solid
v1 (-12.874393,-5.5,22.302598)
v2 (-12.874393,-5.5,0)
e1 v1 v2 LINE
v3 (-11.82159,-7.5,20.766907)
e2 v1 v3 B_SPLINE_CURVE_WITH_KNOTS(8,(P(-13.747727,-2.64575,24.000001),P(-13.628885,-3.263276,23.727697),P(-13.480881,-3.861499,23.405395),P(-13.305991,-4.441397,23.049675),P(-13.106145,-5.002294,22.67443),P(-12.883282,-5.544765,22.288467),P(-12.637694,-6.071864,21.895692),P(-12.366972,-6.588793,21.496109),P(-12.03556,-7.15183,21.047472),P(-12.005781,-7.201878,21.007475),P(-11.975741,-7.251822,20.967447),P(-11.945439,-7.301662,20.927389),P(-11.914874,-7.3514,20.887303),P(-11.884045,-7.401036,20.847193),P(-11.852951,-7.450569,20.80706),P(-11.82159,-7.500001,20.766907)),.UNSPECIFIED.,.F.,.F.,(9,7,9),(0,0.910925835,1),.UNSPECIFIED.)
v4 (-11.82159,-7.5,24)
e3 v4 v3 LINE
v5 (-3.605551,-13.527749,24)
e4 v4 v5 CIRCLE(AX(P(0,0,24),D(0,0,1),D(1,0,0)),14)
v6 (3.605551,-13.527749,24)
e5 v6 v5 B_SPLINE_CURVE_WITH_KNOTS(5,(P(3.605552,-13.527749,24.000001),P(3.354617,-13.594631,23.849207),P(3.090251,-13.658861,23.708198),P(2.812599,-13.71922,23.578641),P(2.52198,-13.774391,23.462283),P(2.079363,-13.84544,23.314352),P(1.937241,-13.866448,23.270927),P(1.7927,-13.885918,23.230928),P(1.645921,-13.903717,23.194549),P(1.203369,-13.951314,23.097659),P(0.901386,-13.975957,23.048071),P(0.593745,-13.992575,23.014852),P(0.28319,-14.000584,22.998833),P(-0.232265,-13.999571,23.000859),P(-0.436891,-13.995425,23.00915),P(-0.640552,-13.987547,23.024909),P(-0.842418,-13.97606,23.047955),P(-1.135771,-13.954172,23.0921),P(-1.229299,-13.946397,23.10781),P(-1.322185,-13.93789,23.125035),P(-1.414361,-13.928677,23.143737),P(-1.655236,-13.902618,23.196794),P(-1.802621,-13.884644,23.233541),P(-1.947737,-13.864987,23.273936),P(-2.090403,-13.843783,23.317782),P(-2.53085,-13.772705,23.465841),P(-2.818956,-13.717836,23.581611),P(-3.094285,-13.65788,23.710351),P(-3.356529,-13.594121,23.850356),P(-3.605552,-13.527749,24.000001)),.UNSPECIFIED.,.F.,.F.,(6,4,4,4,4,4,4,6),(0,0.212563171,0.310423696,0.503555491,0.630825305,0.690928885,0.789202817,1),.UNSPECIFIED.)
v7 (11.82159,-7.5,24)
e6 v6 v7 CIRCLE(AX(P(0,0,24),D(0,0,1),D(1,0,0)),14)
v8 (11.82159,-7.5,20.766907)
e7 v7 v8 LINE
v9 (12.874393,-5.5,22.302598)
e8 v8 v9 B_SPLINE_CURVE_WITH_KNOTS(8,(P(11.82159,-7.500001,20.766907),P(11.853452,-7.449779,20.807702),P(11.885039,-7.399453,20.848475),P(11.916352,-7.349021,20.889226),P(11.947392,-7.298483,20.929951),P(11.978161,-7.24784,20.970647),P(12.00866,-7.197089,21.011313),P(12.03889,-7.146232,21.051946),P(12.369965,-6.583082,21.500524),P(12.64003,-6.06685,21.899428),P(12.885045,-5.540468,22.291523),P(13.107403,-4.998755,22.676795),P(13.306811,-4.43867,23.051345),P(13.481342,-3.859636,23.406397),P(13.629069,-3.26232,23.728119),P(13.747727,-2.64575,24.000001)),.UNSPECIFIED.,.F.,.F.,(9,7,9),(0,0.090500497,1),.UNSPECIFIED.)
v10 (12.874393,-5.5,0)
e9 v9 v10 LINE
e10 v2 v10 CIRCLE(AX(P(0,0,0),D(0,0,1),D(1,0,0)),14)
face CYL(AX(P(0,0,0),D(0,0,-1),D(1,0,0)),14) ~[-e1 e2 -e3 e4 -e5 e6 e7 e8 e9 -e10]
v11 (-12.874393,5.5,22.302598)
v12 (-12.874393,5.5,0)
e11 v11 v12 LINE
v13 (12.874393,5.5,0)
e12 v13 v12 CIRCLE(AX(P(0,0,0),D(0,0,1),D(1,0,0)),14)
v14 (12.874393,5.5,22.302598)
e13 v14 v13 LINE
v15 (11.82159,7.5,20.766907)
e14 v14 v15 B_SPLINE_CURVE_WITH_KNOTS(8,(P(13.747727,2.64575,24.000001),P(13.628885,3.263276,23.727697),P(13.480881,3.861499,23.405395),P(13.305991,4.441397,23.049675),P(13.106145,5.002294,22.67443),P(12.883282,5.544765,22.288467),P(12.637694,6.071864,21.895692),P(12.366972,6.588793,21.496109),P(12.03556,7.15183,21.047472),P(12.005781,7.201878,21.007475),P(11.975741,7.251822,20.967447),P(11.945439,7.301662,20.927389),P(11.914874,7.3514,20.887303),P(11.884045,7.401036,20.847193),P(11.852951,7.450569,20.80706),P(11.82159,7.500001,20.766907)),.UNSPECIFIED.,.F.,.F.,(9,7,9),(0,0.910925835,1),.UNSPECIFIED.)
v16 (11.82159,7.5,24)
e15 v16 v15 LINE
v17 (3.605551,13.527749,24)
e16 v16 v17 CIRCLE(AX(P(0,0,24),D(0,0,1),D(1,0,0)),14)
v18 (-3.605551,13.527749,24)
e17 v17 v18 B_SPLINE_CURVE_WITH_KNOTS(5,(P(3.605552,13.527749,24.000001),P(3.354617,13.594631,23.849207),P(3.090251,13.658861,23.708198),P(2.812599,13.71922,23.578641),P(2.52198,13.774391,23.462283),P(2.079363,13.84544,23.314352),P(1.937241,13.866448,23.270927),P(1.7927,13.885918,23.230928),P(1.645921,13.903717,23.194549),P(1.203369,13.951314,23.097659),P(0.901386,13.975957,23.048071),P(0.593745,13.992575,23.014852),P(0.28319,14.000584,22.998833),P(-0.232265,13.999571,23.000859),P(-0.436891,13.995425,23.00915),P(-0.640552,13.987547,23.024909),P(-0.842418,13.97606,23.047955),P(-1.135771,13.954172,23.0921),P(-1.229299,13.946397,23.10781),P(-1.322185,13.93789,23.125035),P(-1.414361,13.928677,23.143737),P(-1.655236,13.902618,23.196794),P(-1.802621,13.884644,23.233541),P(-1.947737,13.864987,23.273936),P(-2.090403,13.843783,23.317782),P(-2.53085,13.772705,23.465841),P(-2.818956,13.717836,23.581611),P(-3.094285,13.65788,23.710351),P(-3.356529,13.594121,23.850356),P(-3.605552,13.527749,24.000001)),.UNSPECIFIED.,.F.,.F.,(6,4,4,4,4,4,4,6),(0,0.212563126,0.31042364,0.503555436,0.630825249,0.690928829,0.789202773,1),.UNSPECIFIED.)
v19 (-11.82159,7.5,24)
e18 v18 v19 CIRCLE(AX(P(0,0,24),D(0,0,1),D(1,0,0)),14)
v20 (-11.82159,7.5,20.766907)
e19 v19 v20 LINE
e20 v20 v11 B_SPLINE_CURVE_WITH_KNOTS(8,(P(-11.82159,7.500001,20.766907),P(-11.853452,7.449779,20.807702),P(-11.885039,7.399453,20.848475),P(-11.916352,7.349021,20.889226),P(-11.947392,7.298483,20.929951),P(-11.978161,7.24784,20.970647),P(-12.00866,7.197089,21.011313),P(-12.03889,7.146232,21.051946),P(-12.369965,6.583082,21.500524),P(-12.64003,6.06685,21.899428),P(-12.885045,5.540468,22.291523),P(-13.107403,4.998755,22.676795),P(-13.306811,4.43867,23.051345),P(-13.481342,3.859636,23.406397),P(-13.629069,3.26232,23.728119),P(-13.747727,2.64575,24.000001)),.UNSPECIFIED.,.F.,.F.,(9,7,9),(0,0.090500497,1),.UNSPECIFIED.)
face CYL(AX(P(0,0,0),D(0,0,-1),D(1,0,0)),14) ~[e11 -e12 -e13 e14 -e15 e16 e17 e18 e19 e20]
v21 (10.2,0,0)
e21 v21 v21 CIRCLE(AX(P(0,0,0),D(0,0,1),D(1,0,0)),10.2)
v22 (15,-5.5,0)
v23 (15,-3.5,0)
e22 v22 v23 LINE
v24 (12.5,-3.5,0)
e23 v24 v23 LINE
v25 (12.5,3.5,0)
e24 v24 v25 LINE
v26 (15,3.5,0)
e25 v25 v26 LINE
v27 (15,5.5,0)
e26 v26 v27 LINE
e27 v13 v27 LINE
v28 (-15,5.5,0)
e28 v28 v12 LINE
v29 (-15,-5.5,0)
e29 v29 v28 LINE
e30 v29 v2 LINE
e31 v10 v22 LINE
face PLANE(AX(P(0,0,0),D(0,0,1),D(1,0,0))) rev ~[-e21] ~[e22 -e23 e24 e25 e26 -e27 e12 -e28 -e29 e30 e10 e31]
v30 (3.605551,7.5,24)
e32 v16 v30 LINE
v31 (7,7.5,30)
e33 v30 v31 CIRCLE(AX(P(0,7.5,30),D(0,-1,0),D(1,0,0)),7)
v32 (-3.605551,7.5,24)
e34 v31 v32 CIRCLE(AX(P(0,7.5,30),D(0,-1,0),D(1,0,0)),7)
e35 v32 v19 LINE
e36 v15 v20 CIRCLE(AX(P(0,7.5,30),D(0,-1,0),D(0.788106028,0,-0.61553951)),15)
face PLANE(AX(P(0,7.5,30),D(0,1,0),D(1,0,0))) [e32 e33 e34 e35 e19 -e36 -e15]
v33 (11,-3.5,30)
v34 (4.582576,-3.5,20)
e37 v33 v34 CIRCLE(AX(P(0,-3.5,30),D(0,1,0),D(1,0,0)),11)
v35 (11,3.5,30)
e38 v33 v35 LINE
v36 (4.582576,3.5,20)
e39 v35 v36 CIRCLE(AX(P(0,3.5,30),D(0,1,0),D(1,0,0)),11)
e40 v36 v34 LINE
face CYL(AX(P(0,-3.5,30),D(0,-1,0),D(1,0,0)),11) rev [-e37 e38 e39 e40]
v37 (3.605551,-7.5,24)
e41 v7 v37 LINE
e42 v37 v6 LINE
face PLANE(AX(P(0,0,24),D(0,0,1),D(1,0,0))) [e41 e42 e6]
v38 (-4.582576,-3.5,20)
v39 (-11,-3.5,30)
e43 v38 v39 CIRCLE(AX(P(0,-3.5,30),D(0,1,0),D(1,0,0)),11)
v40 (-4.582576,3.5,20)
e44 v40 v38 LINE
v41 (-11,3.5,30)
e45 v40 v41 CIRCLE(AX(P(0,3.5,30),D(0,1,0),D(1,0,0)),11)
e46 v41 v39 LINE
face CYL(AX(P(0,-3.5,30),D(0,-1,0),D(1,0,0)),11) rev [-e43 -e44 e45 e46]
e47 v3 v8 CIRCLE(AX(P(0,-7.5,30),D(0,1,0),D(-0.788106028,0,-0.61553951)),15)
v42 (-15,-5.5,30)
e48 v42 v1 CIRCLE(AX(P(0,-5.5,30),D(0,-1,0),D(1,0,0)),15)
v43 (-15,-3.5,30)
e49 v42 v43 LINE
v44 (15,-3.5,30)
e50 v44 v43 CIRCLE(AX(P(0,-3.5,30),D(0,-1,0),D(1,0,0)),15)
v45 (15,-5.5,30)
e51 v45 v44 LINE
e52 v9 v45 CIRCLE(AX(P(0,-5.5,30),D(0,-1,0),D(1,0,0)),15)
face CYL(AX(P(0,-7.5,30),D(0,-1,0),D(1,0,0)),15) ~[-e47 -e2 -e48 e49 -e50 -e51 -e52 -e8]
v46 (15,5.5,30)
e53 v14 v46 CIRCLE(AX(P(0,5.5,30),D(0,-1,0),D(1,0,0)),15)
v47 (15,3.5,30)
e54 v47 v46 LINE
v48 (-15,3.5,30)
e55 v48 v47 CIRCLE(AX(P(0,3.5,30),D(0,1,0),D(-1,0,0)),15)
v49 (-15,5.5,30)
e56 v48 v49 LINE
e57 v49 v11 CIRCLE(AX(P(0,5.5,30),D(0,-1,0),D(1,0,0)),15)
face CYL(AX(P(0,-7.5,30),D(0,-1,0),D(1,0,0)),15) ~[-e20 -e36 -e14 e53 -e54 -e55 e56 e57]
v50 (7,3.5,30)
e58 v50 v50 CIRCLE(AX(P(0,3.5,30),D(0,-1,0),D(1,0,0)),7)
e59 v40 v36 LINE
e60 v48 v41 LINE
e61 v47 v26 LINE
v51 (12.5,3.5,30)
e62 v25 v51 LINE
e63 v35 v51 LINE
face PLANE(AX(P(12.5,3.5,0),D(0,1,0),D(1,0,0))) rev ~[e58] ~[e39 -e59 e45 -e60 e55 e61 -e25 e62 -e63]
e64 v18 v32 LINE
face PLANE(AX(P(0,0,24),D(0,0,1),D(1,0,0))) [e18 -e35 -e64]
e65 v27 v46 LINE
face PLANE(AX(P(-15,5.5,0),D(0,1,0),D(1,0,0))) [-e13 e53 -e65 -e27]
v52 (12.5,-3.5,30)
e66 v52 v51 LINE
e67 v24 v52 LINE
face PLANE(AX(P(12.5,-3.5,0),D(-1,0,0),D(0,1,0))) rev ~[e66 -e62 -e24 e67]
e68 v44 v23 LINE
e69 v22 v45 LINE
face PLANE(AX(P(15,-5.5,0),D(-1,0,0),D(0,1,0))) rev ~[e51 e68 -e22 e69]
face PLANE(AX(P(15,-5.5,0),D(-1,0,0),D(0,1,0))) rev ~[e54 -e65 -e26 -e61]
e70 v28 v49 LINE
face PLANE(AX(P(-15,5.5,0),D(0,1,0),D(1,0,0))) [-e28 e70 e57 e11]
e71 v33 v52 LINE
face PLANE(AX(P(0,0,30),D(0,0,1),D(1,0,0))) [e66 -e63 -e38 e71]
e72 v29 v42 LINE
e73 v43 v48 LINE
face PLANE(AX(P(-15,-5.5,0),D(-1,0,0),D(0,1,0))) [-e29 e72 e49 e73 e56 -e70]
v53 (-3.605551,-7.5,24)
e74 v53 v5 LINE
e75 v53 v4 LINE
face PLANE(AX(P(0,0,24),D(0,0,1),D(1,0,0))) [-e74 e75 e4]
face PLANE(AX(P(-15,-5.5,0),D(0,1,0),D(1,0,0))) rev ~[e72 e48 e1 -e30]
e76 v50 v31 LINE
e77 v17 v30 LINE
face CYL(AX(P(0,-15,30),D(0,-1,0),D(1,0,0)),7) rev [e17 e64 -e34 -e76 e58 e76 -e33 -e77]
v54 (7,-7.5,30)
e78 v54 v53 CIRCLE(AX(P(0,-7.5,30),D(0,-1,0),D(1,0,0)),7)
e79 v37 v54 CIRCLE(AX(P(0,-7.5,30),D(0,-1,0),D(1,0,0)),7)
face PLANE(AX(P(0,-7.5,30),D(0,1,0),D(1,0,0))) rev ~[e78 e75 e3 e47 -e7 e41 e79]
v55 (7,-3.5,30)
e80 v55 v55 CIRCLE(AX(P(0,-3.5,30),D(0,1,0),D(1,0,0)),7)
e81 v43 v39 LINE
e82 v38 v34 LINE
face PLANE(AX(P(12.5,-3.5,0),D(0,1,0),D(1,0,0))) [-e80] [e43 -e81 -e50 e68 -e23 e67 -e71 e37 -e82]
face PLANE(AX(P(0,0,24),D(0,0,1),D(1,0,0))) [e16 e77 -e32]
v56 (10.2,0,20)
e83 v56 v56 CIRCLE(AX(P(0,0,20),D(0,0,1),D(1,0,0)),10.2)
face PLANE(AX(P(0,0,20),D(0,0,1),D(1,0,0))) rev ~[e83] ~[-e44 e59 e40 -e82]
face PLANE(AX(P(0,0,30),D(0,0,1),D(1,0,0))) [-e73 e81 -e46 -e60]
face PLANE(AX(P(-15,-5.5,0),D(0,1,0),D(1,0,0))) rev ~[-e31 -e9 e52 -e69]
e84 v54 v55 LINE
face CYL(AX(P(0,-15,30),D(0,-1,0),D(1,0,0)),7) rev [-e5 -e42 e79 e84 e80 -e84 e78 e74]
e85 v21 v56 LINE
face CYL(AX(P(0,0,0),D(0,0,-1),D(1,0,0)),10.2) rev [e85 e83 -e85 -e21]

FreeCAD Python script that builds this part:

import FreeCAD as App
import Part
import Sketcher
from FreeCAD import Vector

doc = App.newDocument("Part")
body = doc.addObject("PartDesign::Body", "Body")

sketch1 = body.newObject("Sketcher::SketchObject", "Sketch")
sketch1.AttachmentSupport = (doc.getObject("XY_Plane"), [""])
sketch1.MapMode = "FlatFace"
sketch1.addGeometry(Part.Circle(Vector(0, 0, 0), Vector(0, 0, 1), 11), False)
sketch1.addConstraint([
    Sketcher.Constraint("Coincident", 0, 3, -1, 1),
    Sketcher.Constraint("Diameter", 0, 22.0),
])
pad1 = body.newObject("PartDesign::Pad", "Pad")
pad1.Profile = sketch1
pad1.Length = 7
body2 = doc.addObject("PartDesign::Body", "Body001")
doc.recompute()

body.Placement = App.Placement(Vector(0, 0, 0), App.Rotation(Vector(1, 0, 0), 270))
boolean = body2.newObject("PartDesign::Boolean", "Boolean")
boolean.Type = "Fuse"
boolean.addObjects([body])
body3 = doc.addObject("PartDesign::Body", "Body002")
doc.recompute()

body2.Placement = App.Placement(Vector(0, -3.5, 30), App.Rotation(Vector(0, 0, 1), 0))
boolean2 = body3.newObject("PartDesign::Boolean", "Boolean001")
boolean2.Type = "Fuse"
boolean2.addObjects([body2])
body4 = doc.addObject("PartDesign::Body", "Body003")

sketch2 = body4.newObject("Sketcher::SketchObject", "Sketch001")
sketch2.AttachmentSupport = (doc.getObject("XY_Plane003"), [""])
sketch2.MapMode = "FlatFace"
sketch2.AttachmentOffset = App.Placement(Vector(0, 0, 30), App.Rotation())
sketch2.addGeometry([
    Part.LineSegment(Vector(-15, 3.5, 0), Vector(-15, -3.5, 0)),
    Part.LineSegment(Vector(-15, -3.5, 0), Vector(15, -3.5, 0)),
    Part.LineSegment(Vector(15, -3.5, 0), Vector(15, 3.5, 0)),
    Part.LineSegment(Vector(15, 3.5, 0), Vector(-15, 3.5, 0)),
], False)
sketch2.addConstraint([
    Sketcher.Constraint("Coincident", 0, 2, 1, 1),
    Sketcher.Constraint("Coincident", 1, 2, 2, 1),
    Sketcher.Constraint("Coincident", 2, 2, 3, 1),
    Sketcher.Constraint("Coincident", 3, 2, 0, 1),
    Sketcher.Constraint("Vertical", 0),
    Sketcher.Constraint("Horizontal", 1),
    Sketcher.Constraint("Vertical", 2),
    Sketcher.Constraint("Horizontal", 3),
    Sketcher.Constraint("Symmetric", 0, 2, 2, 2, -1, 1),
    Sketcher.Constraint("DistanceX", 1, 1, 1, 2, 30.0),
    Sketcher.Constraint("DistanceY", 0, 2, 0, 1, 7.0),
])
pad2 = body4.newObject("PartDesign::Pad", "Pad001")
pad2.Profile = sketch2
pad2.Length = 15
body5 = doc.addObject("PartDesign::Body", "Body004")

sketch3 = body5.newObject("Sketcher::SketchObject", "Sketch002")
sketch3.AttachmentSupport = (doc.getObject("XY_Plane004"), [""])
sketch3.MapMode = "FlatFace"
sketch3.addGeometry([
    Part.LineSegment(Vector(12.5, 3.5, 0), Vector(12.5, -3.5, 0)),
    Part.LineSegment(Vector(12.5, -3.5, 0), Vector(22.5, -3.5, 0)),
    Part.LineSegment(Vector(22.5, -3.5, 0), Vector(22.5, 3.5, 0)),
    Part.LineSegment(Vector(22.5, 3.5, 0), Vector(12.5, 3.5, 0)),
], False)
sketch3.addConstraint([
    Sketcher.Constraint("Coincident", 0, 2, 1, 1),
    Sketcher.Constraint("Coincident", 1, 2, 2, 1),
    Sketcher.Constraint("Coincident", 2, 2, 3, 1),
    Sketcher.Constraint("Coincident", 3, 2, 0, 1),
    Sketcher.Constraint("Vertical", 0),
    Sketcher.Constraint("Horizontal", 1),
    Sketcher.Constraint("Vertical", 2),
    Sketcher.Constraint("Horizontal", 3),
    Sketcher.Constraint("DistanceX", 1, 1, 1, 2, 10.0),
    Sketcher.Constraint("DistanceY", 0, 2, 0, 1, 7.0),
    Sketcher.Constraint("DistanceX", -1, 1, 0, 2, 12.5),
    Sketcher.Constraint("DistanceY", 0, 2, -1, 1, 3.5),
])
pad3 = body5.newObject("PartDesign::Pad", "Pad002")
pad3.Profile = sketch3
pad3.Length = 30
body6 = doc.addObject("PartDesign::Body", "Body005")

sketch4 = body6.newObject("Sketcher::SketchObject", "Sketch003")
sketch4.AttachmentSupport = (doc.getObject("XY_Plane005"), [""])
sketch4.MapMode = "FlatFace"
sketch4.addGeometry(Part.Circle(Vector(0, 0, 0), Vector(0, 0, 1), 10.2), False)
sketch4.addConstraint([
    Sketcher.Constraint("Coincident", 0, 3, -1, 1),
    Sketcher.Constraint("Diameter", 0, 20.4),
])
pad4 = body6.newObject("PartDesign::Pad", "Pad003")
pad4.Profile = sketch4
pad4.Length = 20
body7 = doc.addObject("PartDesign::Body", "Body006")

sketch5 = body7.newObject("Sketcher::SketchObject", "Sketch004")
sketch5.AttachmentSupport = (doc.getObject("XY_Plane006"), [""])
sketch5.MapMode = "FlatFace"
sketch5.addGeometry(Part.Circle(Vector(0, 0, 0), Vector(0, 0, 1), 7), False)
sketch5.addConstraint([
    Sketcher.Constraint("Coincident", 0, 3, -1, 1),
    Sketcher.Constraint("Diameter", 0, 14.0),
])
pad5 = body7.newObject("PartDesign::Pad", "Pad004")
pad5.Profile = sketch5
pad5.Length = 30
body8 = doc.addObject("PartDesign::Body", "Body007")
doc.recompute()

body7.Placement = App.Placement(Vector(0, 0, 0), App.Rotation(Vector(1, 0, 0), 270))
boolean3 = body8.newObject("PartDesign::Boolean", "Boolean002")
boolean3.Type = "Fuse"
boolean3.addObjects([body7])
body9 = doc.addObject("PartDesign::Body", "Body008")
doc.recompute()

body8.Placement = App.Placement(Vector(0, -15, 30), App.Rotation(Vector(0, 0, 1), 0))
boolean4 = body9.newObject("PartDesign::Boolean", "Boolean003")
boolean4.Type = "Fuse"
boolean4.addObjects([body8])
doc.recompute()

boolean5 = body9.newObject("PartDesign::Boolean", "Boolean004")
boolean5.Type = "Fuse"
boolean5.addObjects([body3])
doc.recompute()

boolean6 = body9.newObject("PartDesign::Boolean", "Boolean005")
boolean6.Type = "Fuse"
boolean6.addObjects([body4])
doc.recompute()

boolean7 = body9.newObject("PartDesign::Boolean", "Boolean006")
boolean7.Type = "Fuse"
boolean7.addObjects([body5])
doc.recompute()

boolean8 = body9.newObject("PartDesign::Boolean", "Boolean007")
boolean8.Type = "Fuse"
boolean8.addObjects([body6])
body10 = doc.addObject("PartDesign::Body", "Body009")

sketch6 = body10.newObject("Sketcher::SketchObject", "Sketch005")
sketch6.AttachmentSupport = (doc.getObject("XY_Plane009"), [""])
sketch6.MapMode = "FlatFace"
sketch6.addGeometry(Part.Circle(Vector(0, 0, 0), Vector(0, 0, 1), 15), False)
sketch6.addConstraint([
    Sketcher.Constraint("Coincident", 0, 3, -1, 1),
    Sketcher.Constraint("Diameter", 0, 30.0),
])
pad6 = body10.newObject("PartDesign::Pad", "Pad005")
pad6.Profile = sketch6
pad6.Length = 15
body11 = doc.addObject("PartDesign::Body", "Body010")
doc.recompute()

body10.Placement = App.Placement(Vector(0, 0, 0), App.Rotation(Vector(1, 0, 0), 270))
boolean9 = body11.newObject("PartDesign::Boolean", "Boolean008")
boolean9.Type = "Fuse"
boolean9.addObjects([body10])
body12 = doc.addObject("PartDesign::Body", "Body011")
doc.recompute()

body11.Placement = App.Placement(Vector(0, -7.5, 30), App.Rotation(Vector(0, 0, 1), 0))
boolean10 = body12.newObject("PartDesign::Boolean", "Boolean009")
boolean10.Type = "Fuse"
boolean10.addObjects([body11])
body13 = doc.addObject("PartDesign::Body", "Body012")

sketch7 = body13.newObject("Sketcher::SketchObject", "Sketch006")
sketch7.AttachmentSupport = (doc.getObject("XY_Plane012"), [""])
sketch7.MapMode = "FlatFace"
sketch7.addGeometry([
    Part.LineSegment(Vector(-15, 5.5, 0), Vector(-15, -5.5, 0)),
    Part.LineSegment(Vector(-15, -5.5, 0), Vector(15, -5.5, 0)),
    Part.LineSegment(Vector(15, -5.5, 0), Vector(15, 5.5, 0)),
    Part.LineSegment(Vector(15, 5.5, 0), Vector(-15, 5.5, 0)),
], False)
sketch7.addConstraint([
    Sketcher.Constraint("Coincident", 0, 2, 1, 1),
    Sketcher.Constraint("Coincident", 1, 2, 2, 1),
    Sketcher.Constraint("Coincident", 2, 2, 3, 1),
    Sketcher.Constraint("Coincident", 3, 2, 0, 1),
    Sketcher.Constraint("Vertical", 0),
    Sketcher.Constraint("Horizontal", 1),
    Sketcher.Constraint("Vertical", 2),
    Sketcher.Constraint("Horizontal", 3),
    Sketcher.Constraint("Symmetric", 0, 2, 2, 2, -1, 1),
    Sketcher.Constraint("DistanceX", 1, 1, 1, 2, 30.0),
    Sketcher.Constraint("DistanceY", 0, 2, 0, 1, 11.0),
])
pad7 = body13.newObject("PartDesign::Pad", "Pad006")
pad7.Profile = sketch7
pad7.Length = 30
body14 = doc.addObject("PartDesign::Body", "Body013")

sketch8 = body14.newObject("Sketcher::SketchObject", "Sketch007")
sketch8.AttachmentSupport = (doc.getObject("XY_Plane013"), [""])
sketch8.MapMode = "FlatFace"
sketch8.addGeometry(Part.Circle(Vector(0, 0, 0), Vector(0, 0, 1), 14), False)
sketch8.addConstraint([
    Sketcher.Constraint("Coincident", 0, 3, -1, 1),
    Sketcher.Constraint("Diameter", 0, 28.0),
])
pad8 = body14.newObject("PartDesign::Pad", "Pad007")
pad8.Profile = sketch8
pad8.Length = 24
doc.recompute()

boolean11 = body14.newObject("PartDesign::Boolean", "Boolean010")
boolean11.Type = "Fuse"
boolean11.addObjects([body12])
doc.recompute()

boolean12 = body14.newObject("PartDesign::Boolean", "Boolean011")
boolean12.Type = "Fuse"
boolean12.addObjects([body13])
doc.recompute()

boolean13 = body14.newObject("PartDesign::Boolean", "Boolean012")
boolean13.Type = "Cut"
boolean13.addObjects([body9])

doc.recompute()
